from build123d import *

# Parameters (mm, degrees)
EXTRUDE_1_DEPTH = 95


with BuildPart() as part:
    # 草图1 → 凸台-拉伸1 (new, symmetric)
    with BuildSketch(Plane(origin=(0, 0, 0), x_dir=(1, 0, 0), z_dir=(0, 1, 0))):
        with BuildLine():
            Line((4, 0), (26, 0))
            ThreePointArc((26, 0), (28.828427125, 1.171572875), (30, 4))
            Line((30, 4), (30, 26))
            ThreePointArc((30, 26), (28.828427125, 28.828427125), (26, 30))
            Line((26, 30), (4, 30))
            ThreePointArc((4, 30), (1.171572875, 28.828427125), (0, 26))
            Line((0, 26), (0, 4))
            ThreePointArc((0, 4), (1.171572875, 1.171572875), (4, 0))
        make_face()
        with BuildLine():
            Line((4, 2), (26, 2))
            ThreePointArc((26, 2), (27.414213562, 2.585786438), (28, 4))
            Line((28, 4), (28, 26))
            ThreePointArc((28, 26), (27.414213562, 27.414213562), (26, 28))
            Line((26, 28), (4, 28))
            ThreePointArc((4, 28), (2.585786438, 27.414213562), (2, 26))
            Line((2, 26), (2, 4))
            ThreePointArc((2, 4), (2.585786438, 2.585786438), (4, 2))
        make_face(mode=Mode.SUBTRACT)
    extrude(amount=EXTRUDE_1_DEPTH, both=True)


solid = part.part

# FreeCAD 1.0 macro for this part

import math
import FreeCAD as App
import Part
import Sketcher
from FreeCAD import Vector
Q = App.Units.Quantity

doc = App.newDocument("Part")
body = doc.addObject("PartDesign::Body", "Body")

# Sketch on XZ plane
sketch1 = doc.addObject("Sketcher::SketchObject", "Sketch")
body.addObject(sketch1)
sketch1.AttachmentSupport = (doc.XZ_Plane, [""])
sketch1.MapMode = "FlatFace"
sketch1.addGeometry(Part.LineSegment(Vector(4, 0, 0), Vector(26, 0, 0)), False)
sketch1.addGeometry(Part.ArcOfCircle(Part.Circle(Vector(26, -4, 0), Vector(0, 0, 1), 4), math.radians(0), math.radians(90)), False)
sketch1.addGeometry(Part.LineSegment(Vector(30, -4, 0), Vector(30, -26, 0)), False)
sketch1.addGeometry(Part.ArcOfCircle(Part.Circle(Vector(26, -26, 0), Vector(0, 0, 1), 4), math.radians(-90), math.radians(0)), False)
sketch1.addGeometry(Part.LineSegment(Vector(26, -30, 0), Vector(4, -30, 0)), False)
sketch1.addGeometry(Part.ArcOfCircle(Part.Circle(Vector(4, -26, 0), Vector(0, 0, 1), 4), math.radians(180), math.radians(270)), False)
sketch1.addGeometry(Part.LineSegment(Vector(0, -26, 0), Vector(0, -4, 0)), False)
sketch1.addGeometry(Part.ArcOfCircle(Part.Circle(Vector(4, -4, 0), Vector(0, 0, 1), 4), math.radians(90), math.radians(180)), False)
sketch1.addGeometry(Part.LineSegment(Vector(26, -2, 0), Vector(4, -2, 0)), False)
sketch1.addGeometry(Part.ArcOfCircle(Part.Circle(Vector(4, -4, 0), Vector(0, 0, 1), 2), math.radians(90), math.radians(180)), False)
sketch1.addGeometry(Part.LineSegment(Vector(2, -4, 0), Vector(2, -26, 0)), False)
sketch1.addGeometry(Part.ArcOfCircle(Part.Circle(Vector(4, -26, 0), Vector(0, 0, 1), 2), math.radians(-180), math.radians(-90)), False)
sketch1.addGeometry(Part.LineSegment(Vector(4, -28, 0), Vector(26, -28, 0)), False)
sketch1.addGeometry(Part.ArcOfCircle(Part.Circle(Vector(26, -26, 0), Vector(0, 0, 1), 2), math.radians(-90), math.radians(0)), False)
sketch1.addGeometry(Part.LineSegment(Vector(28, -26, 0), Vector(28, -4, 0)), False)
sketch1.addGeometry(Part.ArcOfCircle(Part.Circle(Vector(26, -4, 0), Vector(0, 0, 1), 2), math.radians(0), math.radians(90)), False)
sketch1.addConstraint(Sketcher.Constraint("Tangent", 0, 2, 1, 2))
sketch1.addConstraint(Sketcher.Constraint("Tangent", 1, 1, 2, 1))
sketch1.addConstraint(Sketcher.Constraint("Tangent", 2, 2, 3, 2))
sketch1.addConstraint(Sketcher.Constraint("Tangent", 3, 1, 4, 1))
sketch1.addConstraint(Sketcher.Constraint("Tangent", 4, 2, 5, 2))
sketch1.addConstraint(Sketcher.Constraint("Tangent", 5, 1, 6, 1))
sketch1.addConstraint(Sketcher.Constraint("Tangent", 6, 2, 7, 2))
sketch1.addConstraint(Sketcher.Constraint("Tangent", 7, 1, 0, 1))
sketch1.addConstraint(Sketcher.Constraint("Tangent", 8, 2, 9, 1))
sketch1.addConstraint(Sketcher.Constraint("Tangent", 9, 2, 10, 1))
sketch1.addConstraint(Sketcher.Constraint("Tangent", 10, 2, 11, 1))
sketch1.addConstraint(Sketcher.Constraint("Tangent", 11, 2, 12, 1))
sketch1.addConstraint(Sketcher.Constraint("Tangent", 12, 2, 13, 1))
sketch1.addConstraint(Sketcher.Constraint("Tangent", 13, 2, 14, 1))
sketch1.addConstraint(Sketcher.Constraint("Tangent", 14, 2, 15, 1))
sketch1.addConstraint(Sketcher.Constraint("Tangent", 15, 2, 8, 1))
sketch1.addConstraint(Sketcher.Constraint("Horizontal", 0))
sketch1.addConstraint(Sketcher.Constraint("Vertical", 2))
sketch1.addConstraint(Sketcher.Constraint("Horizontal", 4))
sketch1.addConstraint(Sketcher.Constraint("Vertical", 6))
sketch1.addConstraint(Sketcher.Constraint("Horizontal", 8))
sketch1.addConstraint(Sketcher.Constraint("Vertical", 10))
sketch1.addConstraint(Sketcher.Constraint("Horizontal", 12))
sketch1.addConstraint(Sketcher.Constraint("Vertical", 14))
sketch1.addConstraint(Sketcher.Constraint("Coincident", 9, 3, 7, 3))
sketch1.addConstraint(Sketcher.Constraint("Coincident", 11, 3, 5, 3))
sketch1.addConstraint(Sketcher.Constraint("Coincident", 13, 3, 3, 3))
sketch1.addConstraint(Sketcher.Constraint("Equal", 1, 3))
sketch1.addConstraint(Sketcher.Constraint("Equal", 3, 5))
sketch1.addConstraint(Sketcher.Constraint("Equal", 5, 7))
sketch1.addConstraint(Sketcher.Constraint("Equal", 13, 15))
sketch1.addConstraint(Sketcher.Constraint("PointOnObject", 0, 2, -1))
sketch1.addConstraint(Sketcher.Constraint("PointOnObject", 5, 1, -2))
sketch1.addConstraint(Sketcher.Constraint("Equal", 12, 2))
sketch1.addConstraint(Sketcher.Constraint("Radius", 1, Q("4 mm")))
sketch1.addConstraint(Sketcher.Constraint("Radius", 9, Q("2 mm")))
sketch1.addConstraint(Sketcher.Constraint("DistanceX", 0, 1, 0, 2, Q("22 mm")))
pad1 = doc.addObject("PartDesign::Pad", "Pad")
body.addObject(pad1)
pad1.Profile = sketch1
pad1.Length = 190
pad1.Midplane = True

doc.recompute()
